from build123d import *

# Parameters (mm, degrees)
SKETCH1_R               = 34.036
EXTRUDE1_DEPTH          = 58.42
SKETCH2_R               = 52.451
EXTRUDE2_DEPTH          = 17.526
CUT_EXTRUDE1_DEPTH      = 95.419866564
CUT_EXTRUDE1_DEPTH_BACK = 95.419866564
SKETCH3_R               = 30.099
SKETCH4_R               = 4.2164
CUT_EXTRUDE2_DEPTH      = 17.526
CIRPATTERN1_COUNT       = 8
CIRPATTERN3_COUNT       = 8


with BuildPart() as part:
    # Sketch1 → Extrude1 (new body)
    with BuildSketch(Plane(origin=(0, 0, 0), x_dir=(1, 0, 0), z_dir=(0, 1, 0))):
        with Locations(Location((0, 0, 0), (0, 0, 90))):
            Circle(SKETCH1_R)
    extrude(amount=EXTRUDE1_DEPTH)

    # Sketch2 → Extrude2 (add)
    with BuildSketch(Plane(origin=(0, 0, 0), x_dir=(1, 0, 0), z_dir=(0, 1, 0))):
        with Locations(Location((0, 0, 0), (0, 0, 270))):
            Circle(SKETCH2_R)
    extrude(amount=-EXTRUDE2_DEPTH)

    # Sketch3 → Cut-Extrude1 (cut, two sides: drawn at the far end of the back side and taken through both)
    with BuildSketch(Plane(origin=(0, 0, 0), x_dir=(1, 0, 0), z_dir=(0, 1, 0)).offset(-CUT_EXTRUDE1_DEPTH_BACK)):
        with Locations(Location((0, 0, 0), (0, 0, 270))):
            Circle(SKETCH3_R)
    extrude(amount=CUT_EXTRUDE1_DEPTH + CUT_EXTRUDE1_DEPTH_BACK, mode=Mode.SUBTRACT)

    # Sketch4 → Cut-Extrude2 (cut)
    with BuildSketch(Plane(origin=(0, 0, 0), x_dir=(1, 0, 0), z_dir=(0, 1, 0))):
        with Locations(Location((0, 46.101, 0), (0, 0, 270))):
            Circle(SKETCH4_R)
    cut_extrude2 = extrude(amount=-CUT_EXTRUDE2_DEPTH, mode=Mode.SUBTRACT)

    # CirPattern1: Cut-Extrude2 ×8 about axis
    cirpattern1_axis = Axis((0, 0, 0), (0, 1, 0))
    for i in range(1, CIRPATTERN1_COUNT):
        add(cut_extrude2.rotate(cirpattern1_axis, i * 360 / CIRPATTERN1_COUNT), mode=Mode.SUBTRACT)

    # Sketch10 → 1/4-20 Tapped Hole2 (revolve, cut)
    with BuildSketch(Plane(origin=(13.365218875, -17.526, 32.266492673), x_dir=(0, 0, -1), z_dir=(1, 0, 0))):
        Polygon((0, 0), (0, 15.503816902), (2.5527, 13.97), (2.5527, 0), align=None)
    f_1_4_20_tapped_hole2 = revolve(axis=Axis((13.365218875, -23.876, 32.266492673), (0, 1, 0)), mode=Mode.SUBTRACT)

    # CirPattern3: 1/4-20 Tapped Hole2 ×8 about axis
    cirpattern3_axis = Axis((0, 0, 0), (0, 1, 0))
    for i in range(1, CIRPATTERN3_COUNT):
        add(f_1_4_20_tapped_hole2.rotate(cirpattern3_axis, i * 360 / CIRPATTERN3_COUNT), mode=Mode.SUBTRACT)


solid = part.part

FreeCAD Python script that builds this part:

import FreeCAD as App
import Part
import Sketcher

V = App.Vector
Q = App.Units.Quantity


def add_polygon(sketch, points):
    """Adds a closed chain of lines whose ends are joined by coincident constraints."""
    first, n = sketch.GeometryCount, len(points)
    for a, b in zip(points, points[1:] + points[:1]):
        sketch.addGeometry(Part.LineSegment(App.Vector(*a, 0), App.Vector(*b, 0)), False)
    for i in range(n):
        sketch.addConstraint(Sketcher.Constraint("Coincident", first + i, 2, first + (i + 1) % n, 1))

doc = App.newDocument("Part")
body = doc.addObject("PartDesign::Body", "Body")

sketch1 = body.newObject("Sketcher::SketchObject", "Sketch")
sketch1.AttachmentSupport = (doc.getObject("XZ_Plane"), [""])
sketch1.MapMode = "FlatFace"
sketch1.addGeometry(Part.Circle(V(0, 0, 0), V(0, 0, 1), 34.036), False)
sketch1.addConstraint([
    Sketcher.Constraint("Coincident", 0, 3, -1, 1),
    Sketcher.Constraint("Diameter", 0, Q("2.68 in")),
])
pad1 = body.newObject("PartDesign::Pad", "Pad")
pad1.Profile = sketch1
pad1.Length = Q("2.3 in")
pad1.Reversed = True

sketch2 = body.newObject("Sketcher::SketchObject", "Sketch001")
sketch2.AttachmentSupport = (doc.getObject("XZ_Plane"), [""])
sketch2.MapMode = "FlatFace"
sketch2.addGeometry(Part.Circle(V(0, 0, 0), V(0, 0, 1), 52.451), False)
sketch2.addConstraint([
    Sketcher.Constraint("Coincident", 0, 3, -1, 1),
    Sketcher.Constraint("Diameter", 0, Q("4.13 in")),
])
pad2 = body.newObject("PartDesign::Pad", "Pad001")
pad2.Profile = sketch2
pad2.Length = Q("0.69 in")

sketch3 = body.newObject("Sketcher::SketchObject", "Sketch002")
sketch3.AttachmentSupport = (doc.getObject("XZ_Plane"), [""])
sketch3.MapMode = "FlatFace"
sketch3.addGeometry(Part.Circle(V(0, 0, 0), V(0, 0, 1), 30.099), False)
sketch3.addConstraint([
    Sketcher.Constraint("Coincident", 0, 3, -1, 1),
    Sketcher.Constraint("Diameter", 0, Q("2.37 in")),
])
pocket1 = body.newObject("PartDesign::Pocket", "Pocket")
pocket1.Profile = sketch3
pocket1.Type = "ThroughAll"
pocket1.Midplane = True

sketch4 = body.newObject("Sketcher::SketchObject", "Sketch003")
sketch4.AttachmentSupport = (doc.getObject("XZ_Plane"), [""])
sketch4.MapMode = "FlatFace"
sketch4.addGeometry(Part.Circle(V(0, -46.101, 0), V(0, 0, 1), 4.2164), False)
sketch4.addConstraint([
    Sketcher.Constraint("PointOnObject", 0, 3, -2),
    Sketcher.Constraint("Diameter", 0, Q("0.332 in")),
    Sketcher.Constraint("DistanceY", 0, 3, -1, 1, Q("1.815 in")),
])
pocket2 = body.newObject("PartDesign::Pocket", "Pocket001")
pocket2.Profile = sketch4
pocket2.Length = Q("0.69 in")
pocket2.Reversed = True
doc.recompute()

polarpattern = body.newObject("PartDesign::PolarPattern", "PolarPattern")
polarpattern.Originals = [pocket2]
polarpattern.Axis = (doc.getObject("Y_Axis"), [""])
polarpattern.Angle = 360
polarpattern.Occurrences = 8
body.Tip = polarpattern

sketch5 = body.newObject("Sketcher::SketchObject", "Sketch004")
sketch5.AttachmentSupport = (doc.getObject("YZ_Plane"), [""])
sketch5.MapMode = "FlatFace"
sketch5.AttachmentOffset = App.Placement(V(0, 0, 13.365219), App.Rotation())
add_polygon(sketch5, [(-2.022183, 32.266493), (-17.526, 32.266493), (-17.526, 29.713793), (-3.556, 29.713793)])
sketch5.addGeometry(Part.LineSegment(V(-17.526, 32.266493, 0), V(-2.022183, 32.266493, 0)), True)
sketch5.addConstraint([
    Sketcher.Constraint("Horizontal", 0),
    Sketcher.Constraint("Vertical", 1),
    Sketcher.Constraint("Horizontal", 2),
    Sketcher.Constraint("Horizontal", 4),
    Sketcher.Constraint("Coincident", 4, 1, 0, 2),
    Sketcher.Constraint("Equal", 0, 4),
    Sketcher.Constraint("Angle", 3, Q("59 deg")),
    Sketcher.Constraint("DistanceX", 2, 1, 2, 2, Q("0.55 in")),
    Sketcher.Constraint("DistanceX", 0, 2, -1, 1, Q("0.69 in")),
    Sketcher.Constraint("DistanceY", 1, 2, 1, 1, Q("0.1005 in")),
    Sketcher.Constraint("DistanceY", -1, 1, 0, 2, Q("32.266493 mm")),
])
groove = body.newObject("PartDesign::Groove", "Groove")
groove.Profile = sketch5
groove.ReferenceAxis = (sketch5, ["Axis0"])
groove.Angle = 360
doc.recompute()

polarpattern2 = body.newObject("PartDesign::PolarPattern", "PolarPattern001")
polarpattern2.Originals = [groove]
polarpattern2.Axis = (doc.getObject("Y_Axis"), [""])
polarpattern2.Angle = 360
polarpattern2.Occurrences = 8
body.Tip = polarpattern2

doc.recompute()
